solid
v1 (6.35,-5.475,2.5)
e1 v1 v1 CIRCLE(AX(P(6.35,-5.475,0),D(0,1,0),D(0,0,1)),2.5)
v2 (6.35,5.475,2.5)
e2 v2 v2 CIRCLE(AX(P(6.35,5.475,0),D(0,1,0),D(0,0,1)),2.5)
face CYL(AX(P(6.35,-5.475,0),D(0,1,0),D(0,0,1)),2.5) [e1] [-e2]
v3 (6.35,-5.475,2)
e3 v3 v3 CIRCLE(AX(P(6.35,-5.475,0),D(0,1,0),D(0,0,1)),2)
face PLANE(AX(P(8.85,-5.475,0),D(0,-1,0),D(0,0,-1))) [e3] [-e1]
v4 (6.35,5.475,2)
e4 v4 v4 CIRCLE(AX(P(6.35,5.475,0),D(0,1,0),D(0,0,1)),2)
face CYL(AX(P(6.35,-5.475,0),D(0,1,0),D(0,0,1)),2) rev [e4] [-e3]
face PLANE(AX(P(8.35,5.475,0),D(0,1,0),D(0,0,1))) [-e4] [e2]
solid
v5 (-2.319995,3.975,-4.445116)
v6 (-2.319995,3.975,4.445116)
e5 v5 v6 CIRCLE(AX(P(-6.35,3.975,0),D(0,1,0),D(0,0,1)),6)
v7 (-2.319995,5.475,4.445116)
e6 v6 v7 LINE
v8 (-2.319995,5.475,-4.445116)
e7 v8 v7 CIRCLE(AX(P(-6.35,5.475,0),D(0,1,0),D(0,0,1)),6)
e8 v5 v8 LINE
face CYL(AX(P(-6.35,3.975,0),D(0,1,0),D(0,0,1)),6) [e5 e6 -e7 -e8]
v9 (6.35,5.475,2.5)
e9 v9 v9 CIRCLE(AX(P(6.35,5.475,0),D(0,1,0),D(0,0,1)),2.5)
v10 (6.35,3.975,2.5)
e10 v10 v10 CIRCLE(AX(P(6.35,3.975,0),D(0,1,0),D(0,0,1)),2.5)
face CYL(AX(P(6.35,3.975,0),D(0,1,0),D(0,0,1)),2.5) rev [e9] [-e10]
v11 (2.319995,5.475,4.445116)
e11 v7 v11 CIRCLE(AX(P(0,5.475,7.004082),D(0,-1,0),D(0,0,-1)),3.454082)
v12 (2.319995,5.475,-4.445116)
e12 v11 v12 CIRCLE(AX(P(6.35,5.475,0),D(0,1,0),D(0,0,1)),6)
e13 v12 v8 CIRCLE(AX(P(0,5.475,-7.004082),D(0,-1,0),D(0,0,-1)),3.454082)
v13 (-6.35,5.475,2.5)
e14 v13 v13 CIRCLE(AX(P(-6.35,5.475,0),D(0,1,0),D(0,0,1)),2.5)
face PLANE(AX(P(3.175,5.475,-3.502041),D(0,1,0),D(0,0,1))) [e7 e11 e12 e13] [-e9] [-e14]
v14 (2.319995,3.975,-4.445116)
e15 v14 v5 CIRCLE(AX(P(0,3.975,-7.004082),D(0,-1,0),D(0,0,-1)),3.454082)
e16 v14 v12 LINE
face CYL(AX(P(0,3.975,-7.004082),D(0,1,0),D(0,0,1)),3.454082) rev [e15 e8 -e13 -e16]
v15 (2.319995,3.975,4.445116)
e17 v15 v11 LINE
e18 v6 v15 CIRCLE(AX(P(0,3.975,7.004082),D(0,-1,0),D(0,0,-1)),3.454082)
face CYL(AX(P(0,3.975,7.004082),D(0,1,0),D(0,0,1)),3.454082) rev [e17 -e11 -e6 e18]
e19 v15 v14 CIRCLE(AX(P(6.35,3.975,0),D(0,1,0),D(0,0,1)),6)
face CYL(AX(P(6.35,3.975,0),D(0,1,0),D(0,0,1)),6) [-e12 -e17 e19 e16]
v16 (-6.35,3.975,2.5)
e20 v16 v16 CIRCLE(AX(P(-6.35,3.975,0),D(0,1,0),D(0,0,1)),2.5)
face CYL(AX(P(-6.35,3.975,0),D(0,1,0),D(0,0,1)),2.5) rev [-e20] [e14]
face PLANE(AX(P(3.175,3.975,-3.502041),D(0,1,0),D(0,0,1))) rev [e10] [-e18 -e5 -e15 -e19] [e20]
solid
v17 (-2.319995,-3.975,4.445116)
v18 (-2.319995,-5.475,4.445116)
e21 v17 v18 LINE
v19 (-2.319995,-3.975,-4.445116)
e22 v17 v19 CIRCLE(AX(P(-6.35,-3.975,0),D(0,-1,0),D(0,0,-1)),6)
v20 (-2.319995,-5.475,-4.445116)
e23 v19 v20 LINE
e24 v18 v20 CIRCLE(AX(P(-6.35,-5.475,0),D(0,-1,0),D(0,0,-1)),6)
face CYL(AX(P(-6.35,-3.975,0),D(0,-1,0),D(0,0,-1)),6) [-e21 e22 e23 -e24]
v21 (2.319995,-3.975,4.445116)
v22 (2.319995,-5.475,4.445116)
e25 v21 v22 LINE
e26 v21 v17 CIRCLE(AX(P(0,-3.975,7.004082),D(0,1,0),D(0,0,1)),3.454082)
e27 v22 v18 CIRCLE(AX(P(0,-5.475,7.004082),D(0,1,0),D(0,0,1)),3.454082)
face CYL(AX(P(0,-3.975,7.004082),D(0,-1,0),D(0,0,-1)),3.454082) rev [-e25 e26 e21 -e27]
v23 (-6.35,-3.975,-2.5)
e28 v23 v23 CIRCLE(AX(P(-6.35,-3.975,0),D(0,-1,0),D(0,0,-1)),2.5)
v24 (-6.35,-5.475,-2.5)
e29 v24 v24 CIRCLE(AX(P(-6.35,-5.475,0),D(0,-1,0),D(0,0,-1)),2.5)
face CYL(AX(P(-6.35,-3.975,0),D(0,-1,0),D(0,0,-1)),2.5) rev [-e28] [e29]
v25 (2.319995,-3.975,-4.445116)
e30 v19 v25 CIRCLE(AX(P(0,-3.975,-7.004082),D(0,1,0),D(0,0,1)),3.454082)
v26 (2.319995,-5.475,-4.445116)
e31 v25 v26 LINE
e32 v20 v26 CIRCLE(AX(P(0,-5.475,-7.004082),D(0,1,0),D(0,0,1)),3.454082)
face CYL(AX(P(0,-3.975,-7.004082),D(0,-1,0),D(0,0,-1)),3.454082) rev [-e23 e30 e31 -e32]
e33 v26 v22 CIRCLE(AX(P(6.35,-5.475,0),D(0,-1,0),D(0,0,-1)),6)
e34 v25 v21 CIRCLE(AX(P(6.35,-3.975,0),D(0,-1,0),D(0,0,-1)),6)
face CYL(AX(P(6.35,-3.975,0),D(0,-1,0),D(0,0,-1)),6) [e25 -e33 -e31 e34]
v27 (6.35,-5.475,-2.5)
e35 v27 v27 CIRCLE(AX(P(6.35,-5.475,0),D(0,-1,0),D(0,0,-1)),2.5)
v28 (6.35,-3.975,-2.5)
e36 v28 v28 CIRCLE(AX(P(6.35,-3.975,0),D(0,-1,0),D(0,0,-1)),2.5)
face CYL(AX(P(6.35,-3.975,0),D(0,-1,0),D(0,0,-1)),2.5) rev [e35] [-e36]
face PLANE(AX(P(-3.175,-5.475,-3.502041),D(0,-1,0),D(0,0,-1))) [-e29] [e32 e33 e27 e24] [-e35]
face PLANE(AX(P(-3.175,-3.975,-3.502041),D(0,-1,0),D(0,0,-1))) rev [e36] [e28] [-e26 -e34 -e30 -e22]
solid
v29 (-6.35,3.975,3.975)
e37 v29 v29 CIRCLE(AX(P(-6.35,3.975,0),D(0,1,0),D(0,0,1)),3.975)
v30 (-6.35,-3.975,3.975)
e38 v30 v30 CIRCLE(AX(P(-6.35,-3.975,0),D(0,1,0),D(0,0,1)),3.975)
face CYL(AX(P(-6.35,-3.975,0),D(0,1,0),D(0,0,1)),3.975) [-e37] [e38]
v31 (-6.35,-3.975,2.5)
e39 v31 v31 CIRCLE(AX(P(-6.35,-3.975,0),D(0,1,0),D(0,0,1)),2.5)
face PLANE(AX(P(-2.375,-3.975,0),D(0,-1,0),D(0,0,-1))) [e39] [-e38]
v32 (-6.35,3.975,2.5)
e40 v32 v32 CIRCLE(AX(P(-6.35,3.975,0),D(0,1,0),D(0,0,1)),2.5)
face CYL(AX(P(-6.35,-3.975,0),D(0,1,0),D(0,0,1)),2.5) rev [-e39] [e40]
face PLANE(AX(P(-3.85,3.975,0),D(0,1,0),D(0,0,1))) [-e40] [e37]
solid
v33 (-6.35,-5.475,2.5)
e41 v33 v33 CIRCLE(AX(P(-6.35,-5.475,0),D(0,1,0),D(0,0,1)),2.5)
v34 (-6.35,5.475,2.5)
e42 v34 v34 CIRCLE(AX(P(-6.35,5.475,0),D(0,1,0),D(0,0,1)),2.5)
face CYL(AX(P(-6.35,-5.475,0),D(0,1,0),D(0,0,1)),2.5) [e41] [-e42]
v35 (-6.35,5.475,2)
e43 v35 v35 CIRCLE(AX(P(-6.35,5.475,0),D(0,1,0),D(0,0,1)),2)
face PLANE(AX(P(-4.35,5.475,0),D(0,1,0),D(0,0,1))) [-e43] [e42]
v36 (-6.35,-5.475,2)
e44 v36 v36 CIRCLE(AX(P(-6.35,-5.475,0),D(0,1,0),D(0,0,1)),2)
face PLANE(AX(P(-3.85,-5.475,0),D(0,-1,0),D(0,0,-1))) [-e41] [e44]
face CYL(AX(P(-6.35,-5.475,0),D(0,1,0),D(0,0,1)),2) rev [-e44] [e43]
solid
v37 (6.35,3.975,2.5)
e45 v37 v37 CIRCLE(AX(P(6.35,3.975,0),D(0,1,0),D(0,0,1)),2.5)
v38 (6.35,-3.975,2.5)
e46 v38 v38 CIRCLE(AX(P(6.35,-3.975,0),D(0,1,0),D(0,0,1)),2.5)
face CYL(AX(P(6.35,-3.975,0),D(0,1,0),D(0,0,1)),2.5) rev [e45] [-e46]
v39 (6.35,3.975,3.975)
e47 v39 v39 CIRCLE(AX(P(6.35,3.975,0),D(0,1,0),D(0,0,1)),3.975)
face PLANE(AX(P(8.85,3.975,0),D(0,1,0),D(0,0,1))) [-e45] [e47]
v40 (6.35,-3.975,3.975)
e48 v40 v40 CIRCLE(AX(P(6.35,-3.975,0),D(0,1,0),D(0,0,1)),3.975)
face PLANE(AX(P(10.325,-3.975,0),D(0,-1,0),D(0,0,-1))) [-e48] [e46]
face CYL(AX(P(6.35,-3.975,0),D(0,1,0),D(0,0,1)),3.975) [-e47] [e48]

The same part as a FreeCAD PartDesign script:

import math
import FreeCAD as App
import Part
import Sketcher
Q = App.Units.Quantity

doc = App.newDocument("Part")
body = doc.addObject("PartDesign::Body", "Body")

sketch1 = body.newObject("Sketcher::SketchObject", "Sketch")
sketch1.AttachmentSupport = (doc.getObject("XZ_Plane"), [""])
sketch1.MapMode = "FlatFace"
sketch1.AttachmentOffset = App.Placement(App.Vector(0, 0, -5.475), App.Rotation())
sketch1.addGeometry([
    Part.ArcOfCircle(Part.Circle(App.Vector(0, -7, 0), App.Vector(0, 0, 1), 3.5), math.radians(48), math.radians(132)),
    Part.ArcOfCircle(Part.Circle(App.Vector(-6.3, 0, 0), App.Vector(0, 0, 1), 6), math.radians(48), math.radians(312)),
    Part.ArcOfCircle(Part.Circle(App.Vector(0, 7, 0), App.Vector(0, 0, 1), 3.5), math.radians(-132), math.radians(-48)),
    Part.ArcOfCircle(Part.Circle(App.Vector(6.3, 0, 0), App.Vector(0, 0, 1), 6), math.radians(-132), math.radians(132)),
    Part.Circle(App.Vector(-6.3, 0, 0), App.Vector(0, 0, 1), 2.5),
    Part.Circle(App.Vector(6.3, 0, 0), App.Vector(0, 0, 1), 2.5),
], False)
sketch1.addConstraint([
    Sketcher.Constraint("Tangent", 0, 2, 1, 2),
    Sketcher.Constraint("Tangent", 1, 1, 2, 1),
    Sketcher.Constraint("Tangent", 2, 2, 3, 2),
    Sketcher.Constraint("Tangent", 3, 1, 0, 1),
    Sketcher.Constraint("Coincident", 4, 3, 1, 3),
    Sketcher.Constraint("Coincident", 5, 3, 3, 3),
    Sketcher.Constraint("Equal", 0, 2),
    Sketcher.Constraint("Equal", 1, 3),
    Sketcher.Constraint("Equal", 4, 5),
    Sketcher.Constraint("Symmetric", 0, 3, 2, 3, -1, 1),
    Sketcher.Constraint("PointOnObject", 0, 3, -2),
    Sketcher.Constraint("Diameter", 4, Q("5 mm")),
    Sketcher.Constraint("Radius", 1, Q("6 mm")),
    Sketcher.Constraint("DistanceX", 1, 3, 3, 3, Q("12.7 mm")),
    Sketcher.Constraint("Radius", 0, Q("3.454082 mm")),
])
pad1 = body.newObject("PartDesign::Pad", "Pad")
pad1.Profile = sketch1
pad1.Length = 1.5
body2 = doc.addObject("PartDesign::Body", "Body001")

sketch2 = body2.newObject("Sketcher::SketchObject", "Sketch001")
sketch2.AttachmentSupport = (doc.getObject("XZ_Plane001"), [""])
sketch2.MapMode = "FlatFace"
sketch2.AttachmentOffset = App.Placement(App.Vector(0, 0, 5.475), App.Rotation())
sketch2.addGeometry([
    Part.ArcOfCircle(Part.Circle(App.Vector(0, -7, 0), App.Vector(0, 0, 1), 3.5), math.radians(48), math.radians(132)),
    Part.ArcOfCircle(Part.Circle(App.Vector(6.3, 0, 0), App.Vector(0, 0, 1), 6), math.radians(-132), math.radians(132)),
    Part.ArcOfCircle(Part.Circle(App.Vector(0, 7, 0), App.Vector(0, 0, 1), 3.5), math.radians(-132), math.radians(-48)),
    Part.ArcOfCircle(Part.Circle(App.Vector(-6.3, 0, 0), App.Vector(0, 0, 1), 6), math.radians(48), math.radians(312)),
    Part.Circle(App.Vector(6.3, 0, 0), App.Vector(0, 0, 1), 2.5),
    Part.Circle(App.Vector(-6.3, 0, 0), App.Vector(0, 0, 1), 2.5),
], False)
sketch2.addConstraint([
    Sketcher.Constraint("Tangent", 0, 1, 1, 1),
    Sketcher.Constraint("Tangent", 1, 2, 2, 2),
    Sketcher.Constraint("Tangent", 2, 1, 3, 1),
    Sketcher.Constraint("Tangent", 3, 2, 0, 2),
    Sketcher.Constraint("Coincident", 4, 3, 1, 3),
    Sketcher.Constraint("Coincident", 5, 3, 3, 3),
    Sketcher.Constraint("Equal", 0, 2),
    Sketcher.Constraint("Equal", 1, 3),
    Sketcher.Constraint("Equal", 4, 5),
    Sketcher.Constraint("Symmetric", 0, 3, 2, 3, -1, 1),
    Sketcher.Constraint("PointOnObject", 0, 3, -2),
    Sketcher.Constraint("Diameter", 4, Q("5 mm")),
    Sketcher.Constraint("Radius", 1, Q("6 mm")),
    Sketcher.Constraint("DistanceX", 3, 3, 1, 3, Q("12.7 mm")),
    Sketcher.Constraint("Radius", 0, Q("3.454082 mm")),
])
pad2 = body2.newObject("PartDesign::Pad", "Pad001")
pad2.Profile = sketch2
pad2.Length = 1.5
pad2.Reversed = True
body3 = doc.addObject("PartDesign::Body", "Body002")

sketch3 = body3.newObject("Sketcher::SketchObject", "Sketch002")
sketch3.AttachmentSupport = (doc.getObject("XY_Plane002"), [""])
sketch3.MapMode = "FlatFace"
sketch3.addGeometry([
    Part.LineSegment(App.Vector(-2.4, 4, 0), App.Vector(-2.4, -4, 0)),
    Part.LineSegment(App.Vector(-2.4, -4, 0), App.Vector(-3.9, -4, 0)),
    Part.LineSegment(App.Vector(-3.9, -4, 0), App.Vector(-3.9, 4, 0)),
    Part.LineSegment(App.Vector(-3.9, 4, 0), App.Vector(-2.4, 4, 0)),
], False)
sketch3.addGeometry(Part.LineSegment(App.Vector(-6.3, -4, 0), App.Vector(-6.3, 4, 0)), True)
sketch3.addConstraint([
    Sketcher.Constraint("Coincident", 0, 2, 1, 1),
    Sketcher.Constraint("Coincident", 1, 2, 2, 1),
    Sketcher.Constraint("Coincident", 2, 2, 3, 1),
    Sketcher.Constraint("Coincident", 3, 2, 0, 1),
    Sketcher.Constraint("Vertical", 0),
    Sketcher.Constraint("Horizontal", 1),
    Sketcher.Constraint("Vertical", 2),
    Sketcher.Constraint("Horizontal", 3),
    Sketcher.Constraint("Vertical", 4),
    Sketcher.Constraint("Horizontal", 1, 2, 4, 1),
    Sketcher.Constraint("Horizontal", 3, 2, 4, 2),
    Sketcher.Constraint("DistanceY", 0, 2, 0, 1, Q("7.95 mm")),
    Sketcher.Constraint("DistanceX", 4, 1, 1, 2, Q("2.5 mm")),
    Sketcher.Constraint("DistanceX", 1, 2, 1, 1, Q("1.475 mm")),
    Sketcher.Constraint("DistanceX", 1, 2, -1, 1, Q("3.85 mm")),
    Sketcher.Constraint("DistanceY", 0, 2, -1, 1, Q("3.975 mm")),
])
revolution = body3.newObject("PartDesign::Revolution", "Revolution")
revolution.Profile = sketch3
revolution.ReferenceAxis = (sketch3, ["Axis0"])
revolution.Angle = 360
body4 = doc.addObject("PartDesign::Body", "Body003")

sketch4 = body4.newObject("Sketcher::SketchObject", "Sketch003")
sketch4.AttachmentSupport = (doc.getObject("XY_Plane003"), [""])
sketch4.MapMode = "FlatFace"
sketch4.addGeometry([
    Part.LineSegment(App.Vector(10.3, 4, 0), App.Vector(10.3, -4, 0)),
    Part.LineSegment(App.Vector(10.3, -4, 0), App.Vector(8.8, -4, 0)),
    Part.LineSegment(App.Vector(8.8, -4, 0), App.Vector(8.8, 4, 0)),
    Part.LineSegment(App.Vector(8.8, 4, 0), App.Vector(10.3, 4, 0)),
], False)
sketch4.addGeometry(Part.LineSegment(App.Vector(6.3, -4, 0), App.Vector(6.3, 4, 0)), True)
sketch4.addConstraint([
    Sketcher.Constraint("Coincident", 0, 2, 1, 1),
    Sketcher.Constraint("Coincident", 1, 2, 2, 1),
    Sketcher.Constraint("Coincident", 2, 2, 3, 1),
    Sketcher.Constraint("Coincident", 3, 2, 0, 1),
    Sketcher.Constraint("Vertical", 0),
    Sketcher.Constraint("Horizontal", 1),
    Sketcher.Constraint("Vertical", 2),
    Sketcher.Constraint("Horizontal", 3),
    Sketcher.Constraint("Vertical", 4),
    Sketcher.Constraint("Horizontal", 1, 2, 4, 1),
    Sketcher.Constraint("Horizontal", 3, 2, 4, 2),
    Sketcher.Constraint("DistanceY", 0, 2, 0, 1, Q("7.95 mm")),
    Sketcher.Constraint("DistanceX", 4, 1, 1, 2, Q("2.5 mm")),
    Sketcher.Constraint("DistanceX", 1, 2, 1, 1, Q("1.475 mm")),
    Sketcher.Constraint("DistanceX", -1, 1, 1, 2, Q("8.85 mm")),
    Sketcher.Constraint("DistanceY", 0, 2, -1, 1, Q("3.975 mm")),
])
revolution2 = body4.newObject("PartDesign::Revolution", "Revolution001")
revolution2.Profile = sketch4
revolution2.ReferenceAxis = (sketch4, ["Axis0"])
revolution2.Angle = 360
body5 = doc.addObject("PartDesign::Body", "Body004")

sketch5 = body5.newObject("Sketcher::SketchObject", "Sketch004")
sketch5.AttachmentSupport = (doc.getObject("XY_Plane004"), [""])
sketch5.MapMode = "FlatFace"
sketch5.addGeometry([
    Part.LineSegment(App.Vector(-3.85, 5.47, 0), App.Vector(-3.85, -5.47, 0)),
    Part.LineSegment(App.Vector(-3.85, -5.47, 0), App.Vector(-4.35, -5.47, 0)),
    Part.LineSegment(App.Vector(-4.35, -5.47, 0), App.Vector(-4.35, 5.47, 0)),
    Part.LineSegment(App.Vector(-4.35, 5.47, 0), App.Vector(-3.85, 5.47, 0)),
], False)
sketch5.addGeometry(Part.LineSegment(App.Vector(-6.35, -5.47, 0), App.Vector(-6.35, 5.47, 0)), True)
sketch5.addConstraint([
    Sketcher.Constraint("Coincident", 0, 2, 1, 1),
    Sketcher.Constraint("Coincident", 1, 2, 2, 1),
    Sketcher.Constraint("Coincident", 2, 2, 3, 1),
    Sketcher.Constraint("Coincident", 3, 2, 0, 1),
    Sketcher.Constraint("Vertical", 0),
    Sketcher.Constraint("Horizontal", 1),
    Sketcher.Constraint("Vertical", 2),
    Sketcher.Constraint("Horizontal", 3),
    Sketcher.Constraint("Vertical", 4),
    Sketcher.Constraint("Horizontal", 1, 2, 4, 1),
    Sketcher.Constraint("Horizontal", 3, 2, 4, 2),
    Sketcher.Constraint("DistanceX", 1, 2, 1, 1, Q("0.5 mm")),
    Sketcher.Constraint("DistanceX", 4, 1, 1, 2, Q("2 mm")),
    Sketcher.Constraint("DistanceY", 0, 2, 0, 1, Q("10.95 mm")),
    Sketcher.Constraint("DistanceX", 0, 2, -1, 1, Q("3.85 mm")),
    Sketcher.Constraint("DistanceY", 0, 2, -1, 1, Q("5.475 mm")),
])
revolution3 = body5.newObject("PartDesign::Revolution", "Revolution002")
revolution3.Profile = sketch5
revolution3.ReferenceAxis = (sketch5, ["Axis0"])
revolution3.Angle = 360
body6 = doc.addObject("PartDesign::Body", "Body005")

sketch6 = body6.newObject("Sketcher::SketchObject", "Sketch005")
sketch6.AttachmentSupport = (doc.getObject("XY_Plane005"), [""])
sketch6.MapMode = "FlatFace"
sketch6.addGeometry([
    Part.LineSegment(App.Vector(8.8, 5.5, 0), App.Vector(8.8, -5.5, 0)),
    Part.LineSegment(App.Vector(8.8, -5.5, 0), App.Vector(8.3, -5.5, 0)),
    Part.LineSegment(App.Vector(8.3, -5.5, 0), App.Vector(8.3, 5.5, 0)),
    Part.LineSegment(App.Vector(8.3, 5.5, 0), App.Vector(8.8, 5.5, 0)),
], False)
sketch6.addGeometry(Part.LineSegment(App.Vector(6.3, -5.5, 0), App.Vector(6.3, 5.5, 0)), True)
sketch6.addConstraint([
    Sketcher.Constraint("Coincident", 0, 2, 1, 1),
    Sketcher.Constraint("Coincident", 1, 2, 2, 1),
    Sketcher.Constraint("Coincident", 2, 2, 3, 1),
    Sketcher.Constraint("Coincident", 3, 2, 0, 1),
    Sketcher.Constraint("Vertical", 0),
    Sketcher.Constraint("Horizontal", 1),
    Sketcher.Constraint("Vertical", 2),
    Sketcher.Constraint("Horizontal", 3),
    Sketcher.Constraint("Vertical", 4),
    Sketcher.Constraint("Horizontal", 1, 2, 4, 1),
    Sketcher.Constraint("Horizontal", 3, 2, 4, 2),
    Sketcher.Constraint("DistanceX", 1, 2, 1, 1, Q("0.5 mm")),
    Sketcher.Constraint("DistanceX", 4, 1, 1, 2, Q("2 mm")),
    Sketcher.Constraint("DistanceY", 0, 2, 0, 1, Q("10.95 mm")),
    Sketcher.Constraint("DistanceX", -1, 1, 0, 2, Q("8.85 mm")),
    Sketcher.Constraint("DistanceY", 0, 2, -1, 1, Q("5.475 mm")),
])
revolution4 = body6.newObject("PartDesign::Revolution", "Revolution003")
revolution4.Profile = sketch6
revolution4.ReferenceAxis = (sketch6, ["Axis0"])
revolution4.Angle = 360

doc.recompute()
